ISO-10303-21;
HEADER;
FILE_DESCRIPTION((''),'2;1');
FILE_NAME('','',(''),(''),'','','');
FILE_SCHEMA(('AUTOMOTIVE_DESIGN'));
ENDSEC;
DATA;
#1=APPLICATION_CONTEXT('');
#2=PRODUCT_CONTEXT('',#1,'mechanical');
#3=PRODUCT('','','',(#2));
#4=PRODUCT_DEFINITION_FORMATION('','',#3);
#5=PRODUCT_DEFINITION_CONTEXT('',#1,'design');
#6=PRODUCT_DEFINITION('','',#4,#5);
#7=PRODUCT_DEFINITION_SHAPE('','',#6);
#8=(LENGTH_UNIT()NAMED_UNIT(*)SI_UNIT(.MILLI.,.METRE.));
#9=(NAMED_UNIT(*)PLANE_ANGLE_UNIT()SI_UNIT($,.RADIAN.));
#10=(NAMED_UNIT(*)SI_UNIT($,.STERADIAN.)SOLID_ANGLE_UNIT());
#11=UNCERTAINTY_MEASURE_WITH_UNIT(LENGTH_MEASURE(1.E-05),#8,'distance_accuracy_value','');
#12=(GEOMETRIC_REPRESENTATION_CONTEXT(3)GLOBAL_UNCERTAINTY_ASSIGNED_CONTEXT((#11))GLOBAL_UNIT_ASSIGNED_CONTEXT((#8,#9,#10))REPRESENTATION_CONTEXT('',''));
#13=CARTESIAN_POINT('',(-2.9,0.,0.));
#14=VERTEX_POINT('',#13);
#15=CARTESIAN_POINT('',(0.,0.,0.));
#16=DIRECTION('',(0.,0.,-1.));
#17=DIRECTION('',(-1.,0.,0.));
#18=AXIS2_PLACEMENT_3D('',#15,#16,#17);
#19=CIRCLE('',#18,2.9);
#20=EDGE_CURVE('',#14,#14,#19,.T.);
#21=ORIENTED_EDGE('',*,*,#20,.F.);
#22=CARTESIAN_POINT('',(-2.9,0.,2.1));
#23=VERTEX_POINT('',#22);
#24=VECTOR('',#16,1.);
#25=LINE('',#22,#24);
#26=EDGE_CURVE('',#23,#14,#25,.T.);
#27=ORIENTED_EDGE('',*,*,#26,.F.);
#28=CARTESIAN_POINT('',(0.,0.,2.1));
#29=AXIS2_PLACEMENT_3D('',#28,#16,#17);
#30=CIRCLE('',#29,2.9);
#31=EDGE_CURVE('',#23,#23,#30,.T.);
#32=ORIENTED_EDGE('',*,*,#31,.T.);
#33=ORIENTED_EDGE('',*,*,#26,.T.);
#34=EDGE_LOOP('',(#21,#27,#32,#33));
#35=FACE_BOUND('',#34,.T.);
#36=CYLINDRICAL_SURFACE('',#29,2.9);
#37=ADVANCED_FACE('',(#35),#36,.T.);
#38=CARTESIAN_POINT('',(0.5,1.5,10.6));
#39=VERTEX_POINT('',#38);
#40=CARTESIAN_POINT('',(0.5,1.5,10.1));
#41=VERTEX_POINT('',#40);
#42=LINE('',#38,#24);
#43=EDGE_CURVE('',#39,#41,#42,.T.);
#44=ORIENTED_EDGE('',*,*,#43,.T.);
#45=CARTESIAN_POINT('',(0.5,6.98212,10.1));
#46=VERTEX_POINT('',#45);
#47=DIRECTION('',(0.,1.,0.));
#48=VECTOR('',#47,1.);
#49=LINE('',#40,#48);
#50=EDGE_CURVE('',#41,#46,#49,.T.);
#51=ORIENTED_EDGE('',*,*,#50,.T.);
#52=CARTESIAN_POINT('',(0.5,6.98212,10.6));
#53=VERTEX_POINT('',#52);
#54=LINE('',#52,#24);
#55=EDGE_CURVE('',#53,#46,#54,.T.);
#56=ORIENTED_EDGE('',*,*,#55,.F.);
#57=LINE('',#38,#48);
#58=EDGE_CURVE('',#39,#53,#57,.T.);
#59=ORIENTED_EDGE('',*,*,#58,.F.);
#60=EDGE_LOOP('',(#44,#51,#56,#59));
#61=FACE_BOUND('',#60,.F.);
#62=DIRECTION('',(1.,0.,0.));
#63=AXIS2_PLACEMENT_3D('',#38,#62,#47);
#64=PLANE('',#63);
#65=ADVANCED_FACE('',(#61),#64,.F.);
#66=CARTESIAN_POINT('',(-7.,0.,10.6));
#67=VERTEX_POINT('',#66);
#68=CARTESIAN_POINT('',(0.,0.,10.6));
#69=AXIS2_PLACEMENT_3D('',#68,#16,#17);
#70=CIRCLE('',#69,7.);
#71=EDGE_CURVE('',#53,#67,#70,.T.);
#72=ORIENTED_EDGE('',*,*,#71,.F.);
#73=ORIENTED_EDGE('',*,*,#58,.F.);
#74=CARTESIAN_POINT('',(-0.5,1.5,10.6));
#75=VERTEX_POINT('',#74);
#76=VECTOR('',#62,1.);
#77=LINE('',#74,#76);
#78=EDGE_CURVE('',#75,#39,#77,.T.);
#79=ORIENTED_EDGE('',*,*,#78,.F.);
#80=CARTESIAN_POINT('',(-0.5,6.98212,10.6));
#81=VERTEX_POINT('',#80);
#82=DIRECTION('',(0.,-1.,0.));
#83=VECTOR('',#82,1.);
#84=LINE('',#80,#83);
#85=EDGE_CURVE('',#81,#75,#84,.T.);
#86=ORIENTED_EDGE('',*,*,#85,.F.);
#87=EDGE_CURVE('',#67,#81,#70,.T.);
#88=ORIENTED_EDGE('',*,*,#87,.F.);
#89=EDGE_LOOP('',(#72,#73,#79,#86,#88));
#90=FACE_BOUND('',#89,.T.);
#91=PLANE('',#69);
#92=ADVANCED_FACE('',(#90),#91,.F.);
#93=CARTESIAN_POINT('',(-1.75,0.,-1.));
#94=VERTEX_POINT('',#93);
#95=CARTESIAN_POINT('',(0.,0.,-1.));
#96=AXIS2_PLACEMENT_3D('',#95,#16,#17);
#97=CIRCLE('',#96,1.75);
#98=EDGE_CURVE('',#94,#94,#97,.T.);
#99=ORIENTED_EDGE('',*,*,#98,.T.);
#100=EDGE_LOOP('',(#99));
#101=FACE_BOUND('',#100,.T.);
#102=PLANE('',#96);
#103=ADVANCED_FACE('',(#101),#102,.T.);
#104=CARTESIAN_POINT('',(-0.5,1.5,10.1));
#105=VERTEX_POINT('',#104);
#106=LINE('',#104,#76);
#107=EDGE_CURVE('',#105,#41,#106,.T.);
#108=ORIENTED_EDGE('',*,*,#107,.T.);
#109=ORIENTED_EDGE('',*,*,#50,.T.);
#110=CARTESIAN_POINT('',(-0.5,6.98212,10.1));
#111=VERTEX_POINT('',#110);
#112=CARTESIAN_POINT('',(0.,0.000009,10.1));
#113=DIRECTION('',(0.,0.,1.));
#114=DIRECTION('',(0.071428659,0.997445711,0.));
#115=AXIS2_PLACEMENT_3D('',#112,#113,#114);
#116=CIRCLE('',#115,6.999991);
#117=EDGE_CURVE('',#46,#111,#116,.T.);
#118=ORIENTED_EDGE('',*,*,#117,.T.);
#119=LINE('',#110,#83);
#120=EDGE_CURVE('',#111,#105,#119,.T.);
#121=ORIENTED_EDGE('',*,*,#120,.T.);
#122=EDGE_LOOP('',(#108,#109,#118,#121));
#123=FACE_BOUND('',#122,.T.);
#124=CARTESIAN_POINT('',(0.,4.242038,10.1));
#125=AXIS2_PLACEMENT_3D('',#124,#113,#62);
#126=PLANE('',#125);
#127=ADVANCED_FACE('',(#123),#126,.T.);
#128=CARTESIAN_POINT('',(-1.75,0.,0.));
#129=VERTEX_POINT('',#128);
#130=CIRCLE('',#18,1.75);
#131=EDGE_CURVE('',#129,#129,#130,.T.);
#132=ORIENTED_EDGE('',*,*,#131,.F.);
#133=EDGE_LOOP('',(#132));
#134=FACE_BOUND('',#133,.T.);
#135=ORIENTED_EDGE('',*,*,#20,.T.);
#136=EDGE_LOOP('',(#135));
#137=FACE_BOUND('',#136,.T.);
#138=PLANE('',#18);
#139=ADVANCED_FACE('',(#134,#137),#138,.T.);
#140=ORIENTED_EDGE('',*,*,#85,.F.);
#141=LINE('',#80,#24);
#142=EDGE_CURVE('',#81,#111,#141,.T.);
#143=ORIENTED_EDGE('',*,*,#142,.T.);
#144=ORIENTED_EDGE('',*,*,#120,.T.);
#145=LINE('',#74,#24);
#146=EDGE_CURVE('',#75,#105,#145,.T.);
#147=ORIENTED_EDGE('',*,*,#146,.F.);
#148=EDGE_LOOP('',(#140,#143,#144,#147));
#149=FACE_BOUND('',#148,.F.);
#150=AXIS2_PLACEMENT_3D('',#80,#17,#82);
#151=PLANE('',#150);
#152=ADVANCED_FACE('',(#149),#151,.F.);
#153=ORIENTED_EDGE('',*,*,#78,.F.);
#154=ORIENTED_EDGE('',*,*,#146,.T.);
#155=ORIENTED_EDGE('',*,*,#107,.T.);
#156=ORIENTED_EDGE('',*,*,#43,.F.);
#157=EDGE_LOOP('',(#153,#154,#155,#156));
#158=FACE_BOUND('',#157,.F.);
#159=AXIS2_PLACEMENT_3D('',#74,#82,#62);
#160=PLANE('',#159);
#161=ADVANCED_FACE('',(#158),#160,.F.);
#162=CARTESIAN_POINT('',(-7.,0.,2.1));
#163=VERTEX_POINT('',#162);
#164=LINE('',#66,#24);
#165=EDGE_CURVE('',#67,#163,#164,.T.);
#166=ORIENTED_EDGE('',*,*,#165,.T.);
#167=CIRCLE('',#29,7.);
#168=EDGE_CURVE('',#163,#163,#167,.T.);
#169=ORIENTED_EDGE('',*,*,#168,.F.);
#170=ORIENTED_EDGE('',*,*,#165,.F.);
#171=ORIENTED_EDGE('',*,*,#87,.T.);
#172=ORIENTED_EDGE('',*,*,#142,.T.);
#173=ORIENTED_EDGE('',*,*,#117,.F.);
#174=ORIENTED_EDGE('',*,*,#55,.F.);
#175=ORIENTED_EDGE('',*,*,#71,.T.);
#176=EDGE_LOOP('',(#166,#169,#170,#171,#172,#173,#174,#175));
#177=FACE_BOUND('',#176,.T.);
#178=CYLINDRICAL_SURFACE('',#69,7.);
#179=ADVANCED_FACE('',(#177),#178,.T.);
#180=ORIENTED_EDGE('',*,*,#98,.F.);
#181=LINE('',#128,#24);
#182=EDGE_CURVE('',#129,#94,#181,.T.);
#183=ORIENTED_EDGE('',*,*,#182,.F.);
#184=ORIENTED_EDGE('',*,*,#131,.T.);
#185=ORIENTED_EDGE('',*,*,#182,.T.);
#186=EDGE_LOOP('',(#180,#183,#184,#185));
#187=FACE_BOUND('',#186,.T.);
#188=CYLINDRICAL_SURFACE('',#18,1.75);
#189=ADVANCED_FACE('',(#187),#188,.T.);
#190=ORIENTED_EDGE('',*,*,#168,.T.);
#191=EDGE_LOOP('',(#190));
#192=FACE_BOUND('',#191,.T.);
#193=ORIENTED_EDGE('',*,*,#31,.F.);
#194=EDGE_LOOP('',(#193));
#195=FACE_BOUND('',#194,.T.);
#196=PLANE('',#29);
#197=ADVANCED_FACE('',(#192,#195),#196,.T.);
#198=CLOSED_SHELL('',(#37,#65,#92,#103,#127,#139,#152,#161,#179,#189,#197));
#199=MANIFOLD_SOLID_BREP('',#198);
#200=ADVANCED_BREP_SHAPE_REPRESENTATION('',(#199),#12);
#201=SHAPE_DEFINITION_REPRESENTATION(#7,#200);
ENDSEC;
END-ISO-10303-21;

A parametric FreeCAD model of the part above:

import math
import FreeCAD as App
import Part
import Sketcher
from FreeCAD import Vector
Q = App.Units.Quantity


def add_polygon(sketch, points):
    """Adds a closed chain of lines whose ends are joined by coincident constraints."""
    first, n = sketch.GeometryCount, len(points)
    for a, b in zip(points, points[1:] + points[:1]):
        sketch.addGeometry(Part.LineSegment(App.Vector(*a, 0), App.Vector(*b, 0)), False)
    for i in range(n):
        sketch.addConstraint(Sketcher.Constraint("Coincident", first + i, 2, first + (i + 1) % n, 1))

doc = App.newDocument("Part")
body = doc.addObject("PartDesign::Body", "Body")

# Sketch on XZ plane
sketch1 = body.newObject("Sketcher::SketchObject", "Sketch")
sketch1.AttachmentSupport = (doc.getObject("XZ_Plane"), [""])
sketch1.MapMode = "FlatFace"
add_polygon(sketch1, [(-1.8, -1), (0, -1), (0, 10.6), (-7, 10.6), (-7, 2.1), (-2.9, 2.1), (-2.9, 0), (-1.8, 0)])  # lines 0-7
sketch1.addConstraint([
    Sketcher.Constraint("Horizontal", 0),
    Sketcher.Constraint("Vertical", 1),
    Sketcher.Constraint("Horizontal", 2),
    Sketcher.Constraint("Vertical", 3),
    Sketcher.Constraint("Horizontal", 4),
    Sketcher.Constraint("Vertical", 5),
    Sketcher.Constraint("Horizontal", 6),
    Sketcher.Constraint("Vertical", 7),
    Sketcher.Constraint("PointOnObject", 0, 2, -2),
    Sketcher.Constraint("PointOnObject", 5, 2, -1),
    Sketcher.Constraint("DistanceX", 2, 2, 2, 1, Q("7 mm")),
    Sketcher.Constraint("DistanceY", 7, 2, 7, 1, Q("1 mm")),
    Sketcher.Constraint("DistanceX", 4, 1, 4, 2, Q("4.1 mm")),
    Sketcher.Constraint("DistanceY", 1, 1, 1, 2, Q("11.6 mm")),
    Sketcher.Constraint("DistanceY", 3, 2, 3, 1, Q("8.5 mm")),
    Sketcher.Constraint("DistanceX", 0, 1, 0, 2, Q("1.75 mm")),
])
revolution = body.newObject("PartDesign::Revolution", "Revolution")
revolution.Profile = sketch1
revolution.ReferenceAxis = (sketch1, ["V_Axis"])
revolution.Angle = 360

# Sketch on XY plane
sketch2 = body.newObject("Sketcher::SketchObject", "Sketch001")
sketch2.AttachmentSupport = (doc.getObject("XY_Plane"), [""])
sketch2.MapMode = "FlatFace"
sketch2.AttachmentOffset = App.Placement(Vector(0, 0, 10.6), App.Rotation())
sketch2.addGeometry([
    Part.LineSegment(Vector(-0.5, 1.5, 0), Vector(0.5, 1.5, 0)),
    Part.LineSegment(Vector(0.5, 1.5, 0), Vector(0.5, 7, 0)),
    Part.ArcOfCircle(Part.Circle(Vector(0, 0, 0), Vector(0, 0, 1), 7), math.radians(85.9), math.radians(94.1)),
    Part.LineSegment(Vector(-0.5, 7, 0), Vector(-0.5, 1.5, 0)),
], False)
sketch2.addConstraint([
    Sketcher.Constraint("Coincident", 0, 2, 1, 1),
    Sketcher.Constraint("Coincident", 1, 2, 2, 1),
    Sketcher.Constraint("Coincident", 2, 2, 3, 1),
    Sketcher.Constraint("Coincident", 3, 2, 0, 1),
    Sketcher.Constraint("Horizontal", 0),
    Sketcher.Constraint("Vertical", 1),
    Sketcher.Constraint("Vertical", 3),
    Sketcher.Constraint("Coincident", 2, 3, -1, 1),
    Sketcher.Constraint("Horizontal", 1, 2, 2, 2),
    Sketcher.Constraint("DistanceX", 0, 1, 0, 2, Q("1 mm")),
    Sketcher.Constraint("DistanceY", -1, 1, 0, 2, Q("1.5 mm")),
    Sketcher.Constraint("Radius", 2, Q("6.999991 mm")),
])
pocket1 = body.newObject("PartDesign::Pocket", "Pocket")
pocket1.Profile = sketch2
pocket1.Length = 0.5

doc.recompute()
